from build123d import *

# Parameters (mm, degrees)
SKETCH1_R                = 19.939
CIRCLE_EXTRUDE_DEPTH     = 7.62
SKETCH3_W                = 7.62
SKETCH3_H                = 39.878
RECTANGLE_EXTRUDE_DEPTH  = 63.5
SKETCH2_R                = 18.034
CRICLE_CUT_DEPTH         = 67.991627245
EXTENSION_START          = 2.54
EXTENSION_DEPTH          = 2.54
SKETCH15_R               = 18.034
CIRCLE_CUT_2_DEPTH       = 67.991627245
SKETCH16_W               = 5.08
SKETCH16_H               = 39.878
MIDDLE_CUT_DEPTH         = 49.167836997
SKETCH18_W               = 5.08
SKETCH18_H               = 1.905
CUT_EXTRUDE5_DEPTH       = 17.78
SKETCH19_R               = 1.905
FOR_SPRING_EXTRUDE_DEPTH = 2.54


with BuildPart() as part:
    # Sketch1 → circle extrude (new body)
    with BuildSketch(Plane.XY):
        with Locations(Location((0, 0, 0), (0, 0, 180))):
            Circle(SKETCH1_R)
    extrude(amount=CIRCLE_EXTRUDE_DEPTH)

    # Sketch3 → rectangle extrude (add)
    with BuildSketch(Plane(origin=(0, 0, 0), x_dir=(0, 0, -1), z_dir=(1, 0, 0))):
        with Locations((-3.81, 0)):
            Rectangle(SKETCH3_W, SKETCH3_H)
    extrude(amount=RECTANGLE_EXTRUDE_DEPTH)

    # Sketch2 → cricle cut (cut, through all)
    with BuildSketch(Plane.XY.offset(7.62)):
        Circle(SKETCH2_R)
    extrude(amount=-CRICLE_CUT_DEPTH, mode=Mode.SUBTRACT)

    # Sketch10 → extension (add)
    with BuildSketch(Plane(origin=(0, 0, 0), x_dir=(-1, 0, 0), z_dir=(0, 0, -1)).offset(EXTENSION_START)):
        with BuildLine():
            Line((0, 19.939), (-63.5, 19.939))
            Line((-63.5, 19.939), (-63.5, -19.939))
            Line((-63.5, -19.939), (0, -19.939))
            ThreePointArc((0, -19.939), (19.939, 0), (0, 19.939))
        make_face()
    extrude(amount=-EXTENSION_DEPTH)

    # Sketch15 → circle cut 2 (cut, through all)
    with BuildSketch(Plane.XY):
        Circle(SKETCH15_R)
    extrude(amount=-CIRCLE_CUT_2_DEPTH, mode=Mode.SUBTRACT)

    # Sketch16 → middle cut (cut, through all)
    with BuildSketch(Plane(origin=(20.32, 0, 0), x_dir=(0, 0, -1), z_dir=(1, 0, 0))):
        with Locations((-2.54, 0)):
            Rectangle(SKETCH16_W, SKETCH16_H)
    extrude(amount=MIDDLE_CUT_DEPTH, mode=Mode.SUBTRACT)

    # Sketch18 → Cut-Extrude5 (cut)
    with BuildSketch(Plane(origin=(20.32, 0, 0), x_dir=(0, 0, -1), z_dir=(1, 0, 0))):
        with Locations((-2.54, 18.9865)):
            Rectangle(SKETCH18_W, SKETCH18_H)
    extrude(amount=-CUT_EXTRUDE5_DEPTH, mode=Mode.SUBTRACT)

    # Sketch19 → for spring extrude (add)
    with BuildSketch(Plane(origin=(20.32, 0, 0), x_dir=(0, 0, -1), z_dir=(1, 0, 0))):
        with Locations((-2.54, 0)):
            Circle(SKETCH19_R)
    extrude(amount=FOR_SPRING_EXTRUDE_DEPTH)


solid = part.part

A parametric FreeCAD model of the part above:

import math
import FreeCAD as App
import Part
import Sketcher
from FreeCAD import Vector
Q = App.Units.Quantity


def add_polygon(sketch, points):
    """Adds a closed chain of lines whose ends are joined by coincident constraints."""
    first, n = sketch.GeometryCount, len(points)
    for a, b in zip(points, points[1:] + points[:1]):
        sketch.addGeometry(Part.LineSegment(App.Vector(*a, 0), App.Vector(*b, 0)), False)
    for i in range(n):
        sketch.addConstraint(Sketcher.Constraint("Coincident", first + i, 2, first + (i + 1) % n, 1))

doc = App.newDocument("Part")
params = doc.addObject("Spreadsheet::Sheet", "Params")
for row, (alias, value) in enumerate([
    ("sketch1_diameter", "1.57 in"),
    ("pad1_length", "0.3 in"),
    ("sketch2_height", "0.3 in"),
    ("sketch2_width", "1.57 in"),
    ("pad2_length", "2.5 in"),
    ("sketch3_diameter", "1.42 in"),
    ("sketch4_width", "2.5 in"),
    ("sketch4_radius", "0.785 in"),
    ("pad3_length", "0.1 in"),
    ("sketch5_diameter", "1.42 in"),
    ("sketch6_height", "0.2 in"),
    ("sketch6_width", "1.57 in"),
    ("sketch7_height", "0.2 in"),
    ("sketch7_width", "0.075 in"),
    ("pocket4_length", "0.7 in"),
    ("sketch8_diameter", "0.15 in"),
    ("pad4_length", "0.1 in"),
], start=1):
    params.set(f"A{row}", alias)
    params.set(f"B{row}", "=" + value)
    params.setAlias(f"B{row}", alias)

body = doc.addObject("PartDesign::Body", "Body")

# Sketch on XY plane
sketch1 = doc.addObject("Sketcher::SketchObject", "Sketch")
body.addObject(sketch1)
sketch1.AttachmentSupport = (doc.XY_Plane, [""])
sketch1.MapMode = "FlatFace"
sketch1.addGeometry(Part.Circle(Vector(0, 0, 0), Vector(0, 0, 1), 20), False)
sketch1.addConstraint(Sketcher.Constraint("Coincident", 0, 3, -1, 1))
sketch1.addConstraint(Sketcher.Constraint("Diameter", 0, Q("1.57 in")))
sketch1.setExpression("Constraints[1]", "Params.sketch1_diameter")
pad1 = doc.addObject("PartDesign::Pad", "Pad")
body.addObject(pad1)
pad1.Profile = sketch1
pad1.setExpression("Length", "Params.pad1_length")

# Sketch on YZ plane
sketch2 = doc.addObject("Sketcher::SketchObject", "Sketch001")
body.addObject(sketch2)
sketch2.AttachmentSupport = (doc.YZ_Plane, [""])
sketch2.MapMode = "FlatFace"
add_polygon(sketch2, [(20, 8), (-20, 8), (-20, 0), (20, 0)])  # lines 0-3
sketch2.addConstraint(Sketcher.Constraint("Horizontal", 0))
sketch2.addConstraint(Sketcher.Constraint("Vertical", 1))
sketch2.addConstraint(Sketcher.Constraint("Horizontal", 2))
sketch2.addConstraint(Sketcher.Constraint("Vertical", 3))
sketch2.addConstraint(Sketcher.Constraint("Symmetric", 1, 2, 2, 2, -1, 1))
sketch2.addConstraint(Sketcher.Constraint("DistanceY", 1, 2, 1, 1, Q("0.3 in")))
sketch2.addConstraint(Sketcher.Constraint("DistanceX", 0, 2, 0, 1, Q("1.57 in")))
sketch2.setExpression("Constraints[9]", "Params.sketch2_height")
sketch2.setExpression("Constraints[10]", "Params.sketch2_width")
pad2 = doc.addObject("PartDesign::Pad", "Pad001")
body.addObject(pad2)
pad2.Profile = sketch2
pad2.setExpression("Length", "Params.pad2_length")

# Sketch on XY plane
sketch3 = doc.addObject("Sketcher::SketchObject", "Sketch002")
body.addObject(sketch3)
sketch3.AttachmentSupport = (doc.XY_Plane, [""])
sketch3.MapMode = "FlatFace"
sketch3.AttachmentOffset = App.Placement(Vector(0, 0, 0.3 * 25.4), App.Rotation())
sketch3.addGeometry(Part.Circle(Vector(0, 0, 0), Vector(0, 0, 1), 18), False)
sketch3.addConstraint(Sketcher.Constraint("Coincident", 0, 3, -1, 1))
sketch3.addConstraint(Sketcher.Constraint("Diameter", 0, Q("1.42 in")))
sketch3.setExpression("Constraints[1]", "Params.sketch3_diameter")
pocket1 = doc.addObject("PartDesign::Pocket", "Pocket")
body.addObject(pocket1)
pocket1.Profile = sketch3
pocket1.Type = "ThroughAll"

# Sketch on XY plane
sketch4 = doc.addObject("Sketcher::SketchObject", "Sketch003")
body.addObject(sketch4)
sketch4.AttachmentSupport = (doc.XY_Plane, [""])
sketch4.MapMode = "FlatFace"
sketch4.AttachmentOffset = App.Placement(Vector(0, 0, -0.1 * 25.4), App.Rotation())
sketch4.addGeometry(Part.LineSegment(Vector(0, 20, 0), Vector(64, 20, 0)), False)
sketch4.addGeometry(Part.LineSegment(Vector(64, 20, 0), Vector(64, -20, 0)), False)
sketch4.addGeometry(Part.LineSegment(Vector(64, -20, 0), Vector(0, -20, 0)), False)
sketch4.addGeometry(Part.ArcOfCircle(Part.Circle(Vector(0, 0, 0), Vector(0, 0, 1), 20), math.radians(90), math.radians(270)), False)
sketch4.addConstraint(Sketcher.Constraint("Coincident", 0, 2, 1, 1))
sketch4.addConstraint(Sketcher.Constraint("Coincident", 1, 2, 2, 1))
sketch4.addConstraint(Sketcher.Constraint("Tangent", 2, 2, 3, 2))
sketch4.addConstraint(Sketcher.Constraint("Tangent", 3, 1, 0, 1))
sketch4.addConstraint(Sketcher.Constraint("Horizontal", 0))
sketch4.addConstraint(Sketcher.Constraint("Vertical", 1))
sketch4.addConstraint(Sketcher.Constraint("Horizontal", 2))
sketch4.addConstraint(Sketcher.Constraint("Coincident", 3, 3, -1, 1))
sketch4.addConstraint(Sketcher.Constraint("DistanceX", 0, 1, 0, 2, Q("2.5 in")))
sketch4.addConstraint(Sketcher.Constraint("Radius", 3, Q("0.785 in")))
sketch4.setExpression("Constraints[8]", "Params.sketch4_width")
sketch4.setExpression("Constraints[9]", "Params.sketch4_radius")
pad3 = doc.addObject("PartDesign::Pad", "Pad002")
body.addObject(pad3)
pad3.Profile = sketch4
pad3.setExpression("Length", "Params.pad3_length")

# Sketch on XY plane
sketch5 = doc.addObject("Sketcher::SketchObject", "Sketch004")
body.addObject(sketch5)
sketch5.AttachmentSupport = (doc.XY_Plane, [""])
sketch5.MapMode = "FlatFace"
sketch5.addGeometry(Part.Circle(Vector(0, 0, 0), Vector(0, 0, 1), 18), False)
sketch5.addConstraint(Sketcher.Constraint("Coincident", 0, 3, -1, 1))
sketch5.addConstraint(Sketcher.Constraint("Diameter", 0, Q("1.42 in")))
sketch5.setExpression("Constraints[1]", "Params.sketch5_diameter")
pocket2 = doc.addObject("PartDesign::Pocket", "Pocket001")
body.addObject(pocket2)
pocket2.Profile = sketch5
pocket2.Type = "ThroughAll"

# Sketch on YZ plane
sketch6 = doc.addObject("Sketcher::SketchObject", "Sketch005")
body.addObject(sketch6)
sketch6.AttachmentSupport = (doc.YZ_Plane, [""])
sketch6.MapMode = "FlatFace"
sketch6.AttachmentOffset = App.Placement(Vector(0, 0, 0.8 * 25.4), App.Rotation())
add_polygon(sketch6, [(20, 5), (-20, 5), (-20, 0), (20, 0)])  # lines 0-3
sketch6.addConstraint(Sketcher.Constraint("Horizontal", 0))
sketch6.addConstraint(Sketcher.Constraint("Vertical", 1))
sketch6.addConstraint(Sketcher.Constraint("Horizontal", 2))
sketch6.addConstraint(Sketcher.Constraint("Vertical", 3))
sketch6.addConstraint(Sketcher.Constraint("Symmetric", 1, 2, 2, 2, -1, 1))
sketch6.addConstraint(Sketcher.Constraint("DistanceY", 1, 2, 1, 1, Q("0.2 in")))
sketch6.addConstraint(Sketcher.Constraint("DistanceX", 0, 2, 0, 1, Q("1.57 in")))
sketch6.setExpression("Constraints[9]", "Params.sketch6_height")
sketch6.setExpression("Constraints[10]", "Params.sketch6_width")
pocket3 = doc.addObject("PartDesign::Pocket", "Pocket002")
body.addObject(pocket3)
pocket3.Profile = sketch6
pocket3.Type = "ThroughAll"
pocket3.Reversed = True

# Sketch on YZ plane
sketch7 = doc.addObject("Sketcher::SketchObject", "Sketch006")
body.addObject(sketch7)
sketch7.AttachmentSupport = (doc.YZ_Plane, [""])
sketch7.MapMode = "FlatFace"
sketch7.AttachmentOffset = App.Placement(Vector(0, 0, 0.8 * 25.4), App.Rotation())
add_polygon(sketch7, [(19.9, 5.1), (18, 5.1), (18, 0), (19.9, 0)])  # lines 0-3
sketch7.addConstraint(Sketcher.Constraint("Horizontal", 0))
sketch7.addConstraint(Sketcher.Constraint("Vertical", 1))
sketch7.addConstraint(Sketcher.Constraint("Horizontal", 2))
sketch7.addConstraint(Sketcher.Constraint("Vertical", 3))
sketch7.addConstraint(Sketcher.Constraint("PointOnObject", 1, 2, -1))
sketch7.addConstraint(Sketcher.Constraint("DistanceY", 1, 2, 1, 1, Q("0.2 in")))
sketch7.addConstraint(Sketcher.Constraint("DistanceX", 0, 2, 0, 1, Q("0.075 in")))
sketch7.addConstraint(Sketcher.Constraint("DistanceX", -1, 1, 0, 2, Q("0.71 in")))
sketch7.setExpression("Constraints[9]", "Params.sketch7_height")
sketch7.setExpression("Constraints[10]", "Params.sketch7_width")
pocket4 = doc.addObject("PartDesign::Pocket", "Pocket003")
body.addObject(pocket4)
pocket4.Profile = sketch7
pocket4.setExpression("Length", "Params.pocket4_length")

# Sketch on YZ plane
sketch8 = doc.addObject("Sketcher::SketchObject", "Sketch007")
body.addObject(sketch8)
sketch8.AttachmentSupport = (doc.YZ_Plane, [""])
sketch8.MapMode = "FlatFace"
sketch8.AttachmentOffset = App.Placement(Vector(0, 0, 0.8 * 25.4), App.Rotation())
sketch8.addGeometry(Part.Circle(Vector(0, 2.5, 0), Vector(0, 0, 1), 1.9), False)
sketch8.addConstraint(Sketcher.Constraint("PointOnObject", 0, 3, -2))
sketch8.addConstraint(Sketcher.Constraint("Diameter", 0, Q("0.15 in")))
sketch8.addConstraint(Sketcher.Constraint("DistanceY", -1, 1, 0, 3, Q("0.1 in")))
sketch8.setExpression("Constraints[1]", "Params.sketch8_diameter")
pad4 = doc.addObject("PartDesign::Pad", "Pad003")
body.addObject(pad4)
pad4.Profile = sketch8
pad4.setExpression("Length", "Params.pad4_length")

doc.recompute()
